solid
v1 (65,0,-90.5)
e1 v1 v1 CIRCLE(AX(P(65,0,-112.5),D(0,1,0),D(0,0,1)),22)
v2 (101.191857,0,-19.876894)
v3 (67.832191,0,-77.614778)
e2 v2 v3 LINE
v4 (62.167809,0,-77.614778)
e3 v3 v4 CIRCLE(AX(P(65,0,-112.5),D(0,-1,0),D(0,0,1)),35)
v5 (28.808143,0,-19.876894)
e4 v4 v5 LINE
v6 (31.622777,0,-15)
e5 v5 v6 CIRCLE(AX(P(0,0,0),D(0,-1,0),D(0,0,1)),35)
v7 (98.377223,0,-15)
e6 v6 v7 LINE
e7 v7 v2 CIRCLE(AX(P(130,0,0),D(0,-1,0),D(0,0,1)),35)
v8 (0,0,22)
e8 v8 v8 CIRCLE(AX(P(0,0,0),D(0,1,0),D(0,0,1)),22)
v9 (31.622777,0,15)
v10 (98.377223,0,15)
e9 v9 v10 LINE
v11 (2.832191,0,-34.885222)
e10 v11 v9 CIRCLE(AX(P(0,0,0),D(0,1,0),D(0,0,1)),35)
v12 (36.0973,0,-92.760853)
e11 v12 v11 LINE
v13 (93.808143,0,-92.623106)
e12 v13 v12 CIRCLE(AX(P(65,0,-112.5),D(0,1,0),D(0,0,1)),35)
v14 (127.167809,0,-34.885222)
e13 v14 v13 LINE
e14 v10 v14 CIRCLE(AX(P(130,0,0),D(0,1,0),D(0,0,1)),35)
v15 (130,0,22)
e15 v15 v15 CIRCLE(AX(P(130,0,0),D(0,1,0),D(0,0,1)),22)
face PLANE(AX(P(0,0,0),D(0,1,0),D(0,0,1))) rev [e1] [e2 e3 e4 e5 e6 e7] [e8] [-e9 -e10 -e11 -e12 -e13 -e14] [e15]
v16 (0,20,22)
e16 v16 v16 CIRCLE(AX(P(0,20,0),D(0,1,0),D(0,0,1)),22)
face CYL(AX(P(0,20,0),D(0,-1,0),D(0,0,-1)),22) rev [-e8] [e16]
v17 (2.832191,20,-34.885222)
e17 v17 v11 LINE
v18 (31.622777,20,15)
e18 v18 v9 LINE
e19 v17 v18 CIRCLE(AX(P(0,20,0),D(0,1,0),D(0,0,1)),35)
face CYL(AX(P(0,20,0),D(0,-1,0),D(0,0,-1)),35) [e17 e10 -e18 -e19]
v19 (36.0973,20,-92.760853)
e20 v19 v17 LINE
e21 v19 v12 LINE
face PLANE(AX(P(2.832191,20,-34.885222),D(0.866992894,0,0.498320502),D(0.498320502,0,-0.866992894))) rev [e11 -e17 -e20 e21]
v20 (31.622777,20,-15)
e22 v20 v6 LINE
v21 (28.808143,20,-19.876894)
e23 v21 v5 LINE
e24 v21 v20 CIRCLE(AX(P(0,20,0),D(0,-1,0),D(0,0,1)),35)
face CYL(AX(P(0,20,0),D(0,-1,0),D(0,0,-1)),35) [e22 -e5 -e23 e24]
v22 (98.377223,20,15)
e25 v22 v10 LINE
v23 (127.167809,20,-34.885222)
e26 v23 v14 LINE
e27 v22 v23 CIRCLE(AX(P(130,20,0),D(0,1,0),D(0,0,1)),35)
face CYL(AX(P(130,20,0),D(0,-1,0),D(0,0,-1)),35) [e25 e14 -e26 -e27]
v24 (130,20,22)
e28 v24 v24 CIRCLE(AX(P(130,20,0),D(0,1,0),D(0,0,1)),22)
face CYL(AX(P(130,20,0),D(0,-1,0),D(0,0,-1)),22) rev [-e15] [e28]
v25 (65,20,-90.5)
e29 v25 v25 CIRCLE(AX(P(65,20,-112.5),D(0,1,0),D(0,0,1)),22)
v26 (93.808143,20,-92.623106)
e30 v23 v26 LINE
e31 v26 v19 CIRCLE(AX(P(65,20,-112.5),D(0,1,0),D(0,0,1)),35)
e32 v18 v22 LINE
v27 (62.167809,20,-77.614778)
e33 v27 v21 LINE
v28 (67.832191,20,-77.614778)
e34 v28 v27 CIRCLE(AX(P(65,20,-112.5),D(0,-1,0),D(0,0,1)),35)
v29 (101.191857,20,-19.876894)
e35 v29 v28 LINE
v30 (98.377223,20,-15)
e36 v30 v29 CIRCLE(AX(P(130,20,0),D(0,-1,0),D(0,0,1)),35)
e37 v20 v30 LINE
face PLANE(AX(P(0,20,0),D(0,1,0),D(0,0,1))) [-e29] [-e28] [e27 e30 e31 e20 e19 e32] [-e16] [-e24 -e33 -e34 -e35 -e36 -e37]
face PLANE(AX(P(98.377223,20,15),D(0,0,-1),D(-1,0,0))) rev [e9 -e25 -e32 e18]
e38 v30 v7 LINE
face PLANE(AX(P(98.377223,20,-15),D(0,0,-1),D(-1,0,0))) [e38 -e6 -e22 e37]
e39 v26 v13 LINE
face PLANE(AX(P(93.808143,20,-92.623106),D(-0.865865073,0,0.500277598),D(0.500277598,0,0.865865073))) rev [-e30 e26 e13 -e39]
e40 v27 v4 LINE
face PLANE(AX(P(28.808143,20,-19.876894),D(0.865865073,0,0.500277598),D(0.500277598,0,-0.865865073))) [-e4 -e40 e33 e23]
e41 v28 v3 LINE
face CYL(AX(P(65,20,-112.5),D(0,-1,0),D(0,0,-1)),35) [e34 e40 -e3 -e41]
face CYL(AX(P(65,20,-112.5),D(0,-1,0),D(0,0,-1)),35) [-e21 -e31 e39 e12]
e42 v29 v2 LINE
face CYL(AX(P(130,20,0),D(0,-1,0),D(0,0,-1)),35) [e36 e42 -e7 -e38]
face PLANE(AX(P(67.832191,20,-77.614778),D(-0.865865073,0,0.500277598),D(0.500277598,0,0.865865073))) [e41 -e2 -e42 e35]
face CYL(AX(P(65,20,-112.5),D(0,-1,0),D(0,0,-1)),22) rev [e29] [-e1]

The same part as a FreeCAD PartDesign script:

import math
import FreeCAD as App
import Part
import Sketcher
from FreeCAD import Vector

doc = App.newDocument("Part")
params = doc.addObject("Spreadsheet::Sheet", "Params")
for row, (alias, value) in enumerate([
    ("sketch1_diameter", "44 mm"),
    ("sketch1_radius", "35 mm"),
    ("pad1_length", "20 mm"),
], start=1):
    params.set(f"A{row}", alias)
    params.set(f"B{row}", "=" + value)
    params.setAlias(f"B{row}", alias)

body = doc.addObject("PartDesign::Body", "Body")

sketch1 = body.newObject("Sketcher::SketchObject", "Sketch")
sketch1.AttachmentSupport = (doc.getObject("XZ_Plane"), [""])
sketch1.MapMode = "FlatFace"
sketch1.addGeometry(Part.LineSegment(Vector(32, 15, 0), Vector(98, 15, 0)), False)
sketch1.addGeometry(Part.ArcOfCircle(Part.Circle(Vector(130, 0, 0), Vector(0, 0, 1), 35), math.radians(-95), math.radians(155)), False)
sketch1.addGeometry(Part.LineSegment(Vector(127, -35, 0), Vector(94, -93, 0)), False)
sketch1.addGeometry(Part.ArcOfCircle(Part.Circle(Vector(65, -112, 0), Vector(0, 0, 1), 35), math.radians(146), math.radians(395)), False)
sketch1.addGeometry(Part.LineSegment(Vector(36, -93, 0), Vector(3, -35, 0)), False)
sketch1.addGeometry(Part.ArcOfCircle(Part.Circle(Vector(0, 0, 0), Vector(0, 0, 1), 35), math.radians(25), math.radians(275)), False)
sketch1.addGeometry(Part.Circle(Vector(130, 0, 0), Vector(0, 0, 1), 22), False)
sketch1.addGeometry(Part.Circle(Vector(0, 0, 0), Vector(0, 0, 1), 22), False)
sketch1.addGeometry(Part.LineSegment(Vector(98, -15, 0), Vector(32, -15, 0)), False)
sketch1.addGeometry(Part.ArcOfCircle(Part.Circle(Vector(0, 0, 0), Vector(0, 0, 1), 35), math.radians(-34.6), math.radians(-25.38)), False)
sketch1.addGeometry(Part.LineSegment(Vector(29, -20, 0), Vector(62, -78, 0)), False)
sketch1.addGeometry(Part.ArcOfCircle(Part.Circle(Vector(65, -113, 0), Vector(0, 0, 1), 35), math.radians(85.36), math.radians(94.64)), False)
sketch1.addGeometry(Part.LineSegment(Vector(68, -78, 0), Vector(101, -20, 0)), False)
sketch1.addGeometry(Part.ArcOfCircle(Part.Circle(Vector(130, 0, 0), Vector(0, 0, 1), 35), math.radians(-154.62), math.radians(-145.4)), False)
sketch1.addGeometry(Part.Circle(Vector(65, -112, 0), Vector(0, 0, 1), 22), False)
sketch1.addConstraint(Sketcher.Constraint("Coincident", 0, 2, 1, 2))
sketch1.addConstraint(Sketcher.Constraint("Coincident", 1, 1, 2, 1))
sketch1.addConstraint(Sketcher.Constraint("Coincident", 2, 2, 3, 2))
sketch1.addConstraint(Sketcher.Constraint("Coincident", 3, 1, 4, 1))
sketch1.addConstraint(Sketcher.Constraint("Coincident", 4, 2, 5, 2))
sketch1.addConstraint(Sketcher.Constraint("Coincident", 5, 1, 0, 1))
sketch1.addConstraint(Sketcher.Constraint("Coincident", 8, 2, 9, 2))
sketch1.addConstraint(Sketcher.Constraint("Coincident", 9, 1, 10, 1))
sketch1.addConstraint(Sketcher.Constraint("Coincident", 10, 2, 11, 2))
sketch1.addConstraint(Sketcher.Constraint("Coincident", 11, 1, 12, 1))
sketch1.addConstraint(Sketcher.Constraint("Coincident", 12, 2, 13, 2))
sketch1.addConstraint(Sketcher.Constraint("Coincident", 13, 1, 8, 1))
sketch1.addConstraint(Sketcher.Constraint("Horizontal", 0))
sketch1.addConstraint(Sketcher.Constraint("Horizontal", 8))
sketch1.addConstraint(Sketcher.Constraint("Coincident", 5, 3, -1, 1))
sketch1.addConstraint(Sketcher.Constraint("Coincident", 7, 3, -1, 1))
sketch1.addConstraint(Sketcher.Constraint("Coincident", 9, 3, -1, 1))
sketch1.addConstraint(Sketcher.Constraint("Coincident", 6, 3, 1, 3))
sketch1.addConstraint(Sketcher.Constraint("Coincident", 11, 3, 3, 3))
sketch1.addConstraint(Sketcher.Constraint("Coincident", 13, 3, 1, 3))
sketch1.addConstraint(Sketcher.Constraint("Coincident", 14, 3, 3, 3))
sketch1.addConstraint(Sketcher.Constraint("Equal", 1, 3))
sketch1.addConstraint(Sketcher.Constraint("Equal", 3, 5))
sketch1.addConstraint(Sketcher.Constraint("Equal", 6, 7))
sketch1.addConstraint(Sketcher.Constraint("Equal", 5, 9))
sketch1.addConstraint(Sketcher.Constraint("Equal", 9, 11))
sketch1.addConstraint(Sketcher.Constraint("Equal", 11, 13))
sketch1.addConstraint(Sketcher.Constraint("Equal", 7, 14))
sketch1.addConstraint(Sketcher.Constraint("Symmetric", 0, 2, 13, 1, -1))
sketch1.addConstraint(Sketcher.Constraint("Parallel", 2, 12))
sketch1.addConstraint(Sketcher.Constraint("Horizontal", 1, 1, 4, 2))
sketch1.addConstraint(Sketcher.Constraint("Horizontal", 10, 2, 11, 1))
sketch1.addConstraint(Sketcher.Constraint("Horizontal", 9, 1, 12, 2))
sketch1.addConstraint(Sketcher.Constraint("Equal", 2, 10))
sketch1.addConstraint(Sketcher.Constraint("Equal", 10, 12))
sketch1.addConstraint(Sketcher.Constraint("Diameter", 6, 44.0))
sketch1.addConstraint(Sketcher.Constraint("Radius", 1, 35.0))
sketch1.addConstraint(Sketcher.Constraint("DistanceX", -1, 1, 1, 3, 130.0))
sketch1.addConstraint(Sketcher.Constraint("DistanceY", -1, 1, 0, 2, 15.0))
sketch1.addConstraint(Sketcher.Constraint("DistanceY", 3, 3, -1, 1, 112.5))
sketch1.addConstraint(Sketcher.Constraint("DistanceX", -1, 1, 3, 1, 36.0973))
sketch1.addConstraint(Sketcher.Constraint("Distance", 2, 66.682311))
sketch1.addConstraint(Sketcher.Constraint("DistanceX", -1, 1, 1, 1, 127.167809))
sketch1.setExpression("Constraints[35]", "Params.sketch1_diameter")
sketch1.setExpression("Constraints[36]", "Params.sketch1_radius")
pad1 = body.newObject("PartDesign::Pad", "Pad")
pad1.Profile = sketch1
pad1.setExpression("Length", "Params.pad1_length")
pad1.Reversed = True

doc.recompute()
